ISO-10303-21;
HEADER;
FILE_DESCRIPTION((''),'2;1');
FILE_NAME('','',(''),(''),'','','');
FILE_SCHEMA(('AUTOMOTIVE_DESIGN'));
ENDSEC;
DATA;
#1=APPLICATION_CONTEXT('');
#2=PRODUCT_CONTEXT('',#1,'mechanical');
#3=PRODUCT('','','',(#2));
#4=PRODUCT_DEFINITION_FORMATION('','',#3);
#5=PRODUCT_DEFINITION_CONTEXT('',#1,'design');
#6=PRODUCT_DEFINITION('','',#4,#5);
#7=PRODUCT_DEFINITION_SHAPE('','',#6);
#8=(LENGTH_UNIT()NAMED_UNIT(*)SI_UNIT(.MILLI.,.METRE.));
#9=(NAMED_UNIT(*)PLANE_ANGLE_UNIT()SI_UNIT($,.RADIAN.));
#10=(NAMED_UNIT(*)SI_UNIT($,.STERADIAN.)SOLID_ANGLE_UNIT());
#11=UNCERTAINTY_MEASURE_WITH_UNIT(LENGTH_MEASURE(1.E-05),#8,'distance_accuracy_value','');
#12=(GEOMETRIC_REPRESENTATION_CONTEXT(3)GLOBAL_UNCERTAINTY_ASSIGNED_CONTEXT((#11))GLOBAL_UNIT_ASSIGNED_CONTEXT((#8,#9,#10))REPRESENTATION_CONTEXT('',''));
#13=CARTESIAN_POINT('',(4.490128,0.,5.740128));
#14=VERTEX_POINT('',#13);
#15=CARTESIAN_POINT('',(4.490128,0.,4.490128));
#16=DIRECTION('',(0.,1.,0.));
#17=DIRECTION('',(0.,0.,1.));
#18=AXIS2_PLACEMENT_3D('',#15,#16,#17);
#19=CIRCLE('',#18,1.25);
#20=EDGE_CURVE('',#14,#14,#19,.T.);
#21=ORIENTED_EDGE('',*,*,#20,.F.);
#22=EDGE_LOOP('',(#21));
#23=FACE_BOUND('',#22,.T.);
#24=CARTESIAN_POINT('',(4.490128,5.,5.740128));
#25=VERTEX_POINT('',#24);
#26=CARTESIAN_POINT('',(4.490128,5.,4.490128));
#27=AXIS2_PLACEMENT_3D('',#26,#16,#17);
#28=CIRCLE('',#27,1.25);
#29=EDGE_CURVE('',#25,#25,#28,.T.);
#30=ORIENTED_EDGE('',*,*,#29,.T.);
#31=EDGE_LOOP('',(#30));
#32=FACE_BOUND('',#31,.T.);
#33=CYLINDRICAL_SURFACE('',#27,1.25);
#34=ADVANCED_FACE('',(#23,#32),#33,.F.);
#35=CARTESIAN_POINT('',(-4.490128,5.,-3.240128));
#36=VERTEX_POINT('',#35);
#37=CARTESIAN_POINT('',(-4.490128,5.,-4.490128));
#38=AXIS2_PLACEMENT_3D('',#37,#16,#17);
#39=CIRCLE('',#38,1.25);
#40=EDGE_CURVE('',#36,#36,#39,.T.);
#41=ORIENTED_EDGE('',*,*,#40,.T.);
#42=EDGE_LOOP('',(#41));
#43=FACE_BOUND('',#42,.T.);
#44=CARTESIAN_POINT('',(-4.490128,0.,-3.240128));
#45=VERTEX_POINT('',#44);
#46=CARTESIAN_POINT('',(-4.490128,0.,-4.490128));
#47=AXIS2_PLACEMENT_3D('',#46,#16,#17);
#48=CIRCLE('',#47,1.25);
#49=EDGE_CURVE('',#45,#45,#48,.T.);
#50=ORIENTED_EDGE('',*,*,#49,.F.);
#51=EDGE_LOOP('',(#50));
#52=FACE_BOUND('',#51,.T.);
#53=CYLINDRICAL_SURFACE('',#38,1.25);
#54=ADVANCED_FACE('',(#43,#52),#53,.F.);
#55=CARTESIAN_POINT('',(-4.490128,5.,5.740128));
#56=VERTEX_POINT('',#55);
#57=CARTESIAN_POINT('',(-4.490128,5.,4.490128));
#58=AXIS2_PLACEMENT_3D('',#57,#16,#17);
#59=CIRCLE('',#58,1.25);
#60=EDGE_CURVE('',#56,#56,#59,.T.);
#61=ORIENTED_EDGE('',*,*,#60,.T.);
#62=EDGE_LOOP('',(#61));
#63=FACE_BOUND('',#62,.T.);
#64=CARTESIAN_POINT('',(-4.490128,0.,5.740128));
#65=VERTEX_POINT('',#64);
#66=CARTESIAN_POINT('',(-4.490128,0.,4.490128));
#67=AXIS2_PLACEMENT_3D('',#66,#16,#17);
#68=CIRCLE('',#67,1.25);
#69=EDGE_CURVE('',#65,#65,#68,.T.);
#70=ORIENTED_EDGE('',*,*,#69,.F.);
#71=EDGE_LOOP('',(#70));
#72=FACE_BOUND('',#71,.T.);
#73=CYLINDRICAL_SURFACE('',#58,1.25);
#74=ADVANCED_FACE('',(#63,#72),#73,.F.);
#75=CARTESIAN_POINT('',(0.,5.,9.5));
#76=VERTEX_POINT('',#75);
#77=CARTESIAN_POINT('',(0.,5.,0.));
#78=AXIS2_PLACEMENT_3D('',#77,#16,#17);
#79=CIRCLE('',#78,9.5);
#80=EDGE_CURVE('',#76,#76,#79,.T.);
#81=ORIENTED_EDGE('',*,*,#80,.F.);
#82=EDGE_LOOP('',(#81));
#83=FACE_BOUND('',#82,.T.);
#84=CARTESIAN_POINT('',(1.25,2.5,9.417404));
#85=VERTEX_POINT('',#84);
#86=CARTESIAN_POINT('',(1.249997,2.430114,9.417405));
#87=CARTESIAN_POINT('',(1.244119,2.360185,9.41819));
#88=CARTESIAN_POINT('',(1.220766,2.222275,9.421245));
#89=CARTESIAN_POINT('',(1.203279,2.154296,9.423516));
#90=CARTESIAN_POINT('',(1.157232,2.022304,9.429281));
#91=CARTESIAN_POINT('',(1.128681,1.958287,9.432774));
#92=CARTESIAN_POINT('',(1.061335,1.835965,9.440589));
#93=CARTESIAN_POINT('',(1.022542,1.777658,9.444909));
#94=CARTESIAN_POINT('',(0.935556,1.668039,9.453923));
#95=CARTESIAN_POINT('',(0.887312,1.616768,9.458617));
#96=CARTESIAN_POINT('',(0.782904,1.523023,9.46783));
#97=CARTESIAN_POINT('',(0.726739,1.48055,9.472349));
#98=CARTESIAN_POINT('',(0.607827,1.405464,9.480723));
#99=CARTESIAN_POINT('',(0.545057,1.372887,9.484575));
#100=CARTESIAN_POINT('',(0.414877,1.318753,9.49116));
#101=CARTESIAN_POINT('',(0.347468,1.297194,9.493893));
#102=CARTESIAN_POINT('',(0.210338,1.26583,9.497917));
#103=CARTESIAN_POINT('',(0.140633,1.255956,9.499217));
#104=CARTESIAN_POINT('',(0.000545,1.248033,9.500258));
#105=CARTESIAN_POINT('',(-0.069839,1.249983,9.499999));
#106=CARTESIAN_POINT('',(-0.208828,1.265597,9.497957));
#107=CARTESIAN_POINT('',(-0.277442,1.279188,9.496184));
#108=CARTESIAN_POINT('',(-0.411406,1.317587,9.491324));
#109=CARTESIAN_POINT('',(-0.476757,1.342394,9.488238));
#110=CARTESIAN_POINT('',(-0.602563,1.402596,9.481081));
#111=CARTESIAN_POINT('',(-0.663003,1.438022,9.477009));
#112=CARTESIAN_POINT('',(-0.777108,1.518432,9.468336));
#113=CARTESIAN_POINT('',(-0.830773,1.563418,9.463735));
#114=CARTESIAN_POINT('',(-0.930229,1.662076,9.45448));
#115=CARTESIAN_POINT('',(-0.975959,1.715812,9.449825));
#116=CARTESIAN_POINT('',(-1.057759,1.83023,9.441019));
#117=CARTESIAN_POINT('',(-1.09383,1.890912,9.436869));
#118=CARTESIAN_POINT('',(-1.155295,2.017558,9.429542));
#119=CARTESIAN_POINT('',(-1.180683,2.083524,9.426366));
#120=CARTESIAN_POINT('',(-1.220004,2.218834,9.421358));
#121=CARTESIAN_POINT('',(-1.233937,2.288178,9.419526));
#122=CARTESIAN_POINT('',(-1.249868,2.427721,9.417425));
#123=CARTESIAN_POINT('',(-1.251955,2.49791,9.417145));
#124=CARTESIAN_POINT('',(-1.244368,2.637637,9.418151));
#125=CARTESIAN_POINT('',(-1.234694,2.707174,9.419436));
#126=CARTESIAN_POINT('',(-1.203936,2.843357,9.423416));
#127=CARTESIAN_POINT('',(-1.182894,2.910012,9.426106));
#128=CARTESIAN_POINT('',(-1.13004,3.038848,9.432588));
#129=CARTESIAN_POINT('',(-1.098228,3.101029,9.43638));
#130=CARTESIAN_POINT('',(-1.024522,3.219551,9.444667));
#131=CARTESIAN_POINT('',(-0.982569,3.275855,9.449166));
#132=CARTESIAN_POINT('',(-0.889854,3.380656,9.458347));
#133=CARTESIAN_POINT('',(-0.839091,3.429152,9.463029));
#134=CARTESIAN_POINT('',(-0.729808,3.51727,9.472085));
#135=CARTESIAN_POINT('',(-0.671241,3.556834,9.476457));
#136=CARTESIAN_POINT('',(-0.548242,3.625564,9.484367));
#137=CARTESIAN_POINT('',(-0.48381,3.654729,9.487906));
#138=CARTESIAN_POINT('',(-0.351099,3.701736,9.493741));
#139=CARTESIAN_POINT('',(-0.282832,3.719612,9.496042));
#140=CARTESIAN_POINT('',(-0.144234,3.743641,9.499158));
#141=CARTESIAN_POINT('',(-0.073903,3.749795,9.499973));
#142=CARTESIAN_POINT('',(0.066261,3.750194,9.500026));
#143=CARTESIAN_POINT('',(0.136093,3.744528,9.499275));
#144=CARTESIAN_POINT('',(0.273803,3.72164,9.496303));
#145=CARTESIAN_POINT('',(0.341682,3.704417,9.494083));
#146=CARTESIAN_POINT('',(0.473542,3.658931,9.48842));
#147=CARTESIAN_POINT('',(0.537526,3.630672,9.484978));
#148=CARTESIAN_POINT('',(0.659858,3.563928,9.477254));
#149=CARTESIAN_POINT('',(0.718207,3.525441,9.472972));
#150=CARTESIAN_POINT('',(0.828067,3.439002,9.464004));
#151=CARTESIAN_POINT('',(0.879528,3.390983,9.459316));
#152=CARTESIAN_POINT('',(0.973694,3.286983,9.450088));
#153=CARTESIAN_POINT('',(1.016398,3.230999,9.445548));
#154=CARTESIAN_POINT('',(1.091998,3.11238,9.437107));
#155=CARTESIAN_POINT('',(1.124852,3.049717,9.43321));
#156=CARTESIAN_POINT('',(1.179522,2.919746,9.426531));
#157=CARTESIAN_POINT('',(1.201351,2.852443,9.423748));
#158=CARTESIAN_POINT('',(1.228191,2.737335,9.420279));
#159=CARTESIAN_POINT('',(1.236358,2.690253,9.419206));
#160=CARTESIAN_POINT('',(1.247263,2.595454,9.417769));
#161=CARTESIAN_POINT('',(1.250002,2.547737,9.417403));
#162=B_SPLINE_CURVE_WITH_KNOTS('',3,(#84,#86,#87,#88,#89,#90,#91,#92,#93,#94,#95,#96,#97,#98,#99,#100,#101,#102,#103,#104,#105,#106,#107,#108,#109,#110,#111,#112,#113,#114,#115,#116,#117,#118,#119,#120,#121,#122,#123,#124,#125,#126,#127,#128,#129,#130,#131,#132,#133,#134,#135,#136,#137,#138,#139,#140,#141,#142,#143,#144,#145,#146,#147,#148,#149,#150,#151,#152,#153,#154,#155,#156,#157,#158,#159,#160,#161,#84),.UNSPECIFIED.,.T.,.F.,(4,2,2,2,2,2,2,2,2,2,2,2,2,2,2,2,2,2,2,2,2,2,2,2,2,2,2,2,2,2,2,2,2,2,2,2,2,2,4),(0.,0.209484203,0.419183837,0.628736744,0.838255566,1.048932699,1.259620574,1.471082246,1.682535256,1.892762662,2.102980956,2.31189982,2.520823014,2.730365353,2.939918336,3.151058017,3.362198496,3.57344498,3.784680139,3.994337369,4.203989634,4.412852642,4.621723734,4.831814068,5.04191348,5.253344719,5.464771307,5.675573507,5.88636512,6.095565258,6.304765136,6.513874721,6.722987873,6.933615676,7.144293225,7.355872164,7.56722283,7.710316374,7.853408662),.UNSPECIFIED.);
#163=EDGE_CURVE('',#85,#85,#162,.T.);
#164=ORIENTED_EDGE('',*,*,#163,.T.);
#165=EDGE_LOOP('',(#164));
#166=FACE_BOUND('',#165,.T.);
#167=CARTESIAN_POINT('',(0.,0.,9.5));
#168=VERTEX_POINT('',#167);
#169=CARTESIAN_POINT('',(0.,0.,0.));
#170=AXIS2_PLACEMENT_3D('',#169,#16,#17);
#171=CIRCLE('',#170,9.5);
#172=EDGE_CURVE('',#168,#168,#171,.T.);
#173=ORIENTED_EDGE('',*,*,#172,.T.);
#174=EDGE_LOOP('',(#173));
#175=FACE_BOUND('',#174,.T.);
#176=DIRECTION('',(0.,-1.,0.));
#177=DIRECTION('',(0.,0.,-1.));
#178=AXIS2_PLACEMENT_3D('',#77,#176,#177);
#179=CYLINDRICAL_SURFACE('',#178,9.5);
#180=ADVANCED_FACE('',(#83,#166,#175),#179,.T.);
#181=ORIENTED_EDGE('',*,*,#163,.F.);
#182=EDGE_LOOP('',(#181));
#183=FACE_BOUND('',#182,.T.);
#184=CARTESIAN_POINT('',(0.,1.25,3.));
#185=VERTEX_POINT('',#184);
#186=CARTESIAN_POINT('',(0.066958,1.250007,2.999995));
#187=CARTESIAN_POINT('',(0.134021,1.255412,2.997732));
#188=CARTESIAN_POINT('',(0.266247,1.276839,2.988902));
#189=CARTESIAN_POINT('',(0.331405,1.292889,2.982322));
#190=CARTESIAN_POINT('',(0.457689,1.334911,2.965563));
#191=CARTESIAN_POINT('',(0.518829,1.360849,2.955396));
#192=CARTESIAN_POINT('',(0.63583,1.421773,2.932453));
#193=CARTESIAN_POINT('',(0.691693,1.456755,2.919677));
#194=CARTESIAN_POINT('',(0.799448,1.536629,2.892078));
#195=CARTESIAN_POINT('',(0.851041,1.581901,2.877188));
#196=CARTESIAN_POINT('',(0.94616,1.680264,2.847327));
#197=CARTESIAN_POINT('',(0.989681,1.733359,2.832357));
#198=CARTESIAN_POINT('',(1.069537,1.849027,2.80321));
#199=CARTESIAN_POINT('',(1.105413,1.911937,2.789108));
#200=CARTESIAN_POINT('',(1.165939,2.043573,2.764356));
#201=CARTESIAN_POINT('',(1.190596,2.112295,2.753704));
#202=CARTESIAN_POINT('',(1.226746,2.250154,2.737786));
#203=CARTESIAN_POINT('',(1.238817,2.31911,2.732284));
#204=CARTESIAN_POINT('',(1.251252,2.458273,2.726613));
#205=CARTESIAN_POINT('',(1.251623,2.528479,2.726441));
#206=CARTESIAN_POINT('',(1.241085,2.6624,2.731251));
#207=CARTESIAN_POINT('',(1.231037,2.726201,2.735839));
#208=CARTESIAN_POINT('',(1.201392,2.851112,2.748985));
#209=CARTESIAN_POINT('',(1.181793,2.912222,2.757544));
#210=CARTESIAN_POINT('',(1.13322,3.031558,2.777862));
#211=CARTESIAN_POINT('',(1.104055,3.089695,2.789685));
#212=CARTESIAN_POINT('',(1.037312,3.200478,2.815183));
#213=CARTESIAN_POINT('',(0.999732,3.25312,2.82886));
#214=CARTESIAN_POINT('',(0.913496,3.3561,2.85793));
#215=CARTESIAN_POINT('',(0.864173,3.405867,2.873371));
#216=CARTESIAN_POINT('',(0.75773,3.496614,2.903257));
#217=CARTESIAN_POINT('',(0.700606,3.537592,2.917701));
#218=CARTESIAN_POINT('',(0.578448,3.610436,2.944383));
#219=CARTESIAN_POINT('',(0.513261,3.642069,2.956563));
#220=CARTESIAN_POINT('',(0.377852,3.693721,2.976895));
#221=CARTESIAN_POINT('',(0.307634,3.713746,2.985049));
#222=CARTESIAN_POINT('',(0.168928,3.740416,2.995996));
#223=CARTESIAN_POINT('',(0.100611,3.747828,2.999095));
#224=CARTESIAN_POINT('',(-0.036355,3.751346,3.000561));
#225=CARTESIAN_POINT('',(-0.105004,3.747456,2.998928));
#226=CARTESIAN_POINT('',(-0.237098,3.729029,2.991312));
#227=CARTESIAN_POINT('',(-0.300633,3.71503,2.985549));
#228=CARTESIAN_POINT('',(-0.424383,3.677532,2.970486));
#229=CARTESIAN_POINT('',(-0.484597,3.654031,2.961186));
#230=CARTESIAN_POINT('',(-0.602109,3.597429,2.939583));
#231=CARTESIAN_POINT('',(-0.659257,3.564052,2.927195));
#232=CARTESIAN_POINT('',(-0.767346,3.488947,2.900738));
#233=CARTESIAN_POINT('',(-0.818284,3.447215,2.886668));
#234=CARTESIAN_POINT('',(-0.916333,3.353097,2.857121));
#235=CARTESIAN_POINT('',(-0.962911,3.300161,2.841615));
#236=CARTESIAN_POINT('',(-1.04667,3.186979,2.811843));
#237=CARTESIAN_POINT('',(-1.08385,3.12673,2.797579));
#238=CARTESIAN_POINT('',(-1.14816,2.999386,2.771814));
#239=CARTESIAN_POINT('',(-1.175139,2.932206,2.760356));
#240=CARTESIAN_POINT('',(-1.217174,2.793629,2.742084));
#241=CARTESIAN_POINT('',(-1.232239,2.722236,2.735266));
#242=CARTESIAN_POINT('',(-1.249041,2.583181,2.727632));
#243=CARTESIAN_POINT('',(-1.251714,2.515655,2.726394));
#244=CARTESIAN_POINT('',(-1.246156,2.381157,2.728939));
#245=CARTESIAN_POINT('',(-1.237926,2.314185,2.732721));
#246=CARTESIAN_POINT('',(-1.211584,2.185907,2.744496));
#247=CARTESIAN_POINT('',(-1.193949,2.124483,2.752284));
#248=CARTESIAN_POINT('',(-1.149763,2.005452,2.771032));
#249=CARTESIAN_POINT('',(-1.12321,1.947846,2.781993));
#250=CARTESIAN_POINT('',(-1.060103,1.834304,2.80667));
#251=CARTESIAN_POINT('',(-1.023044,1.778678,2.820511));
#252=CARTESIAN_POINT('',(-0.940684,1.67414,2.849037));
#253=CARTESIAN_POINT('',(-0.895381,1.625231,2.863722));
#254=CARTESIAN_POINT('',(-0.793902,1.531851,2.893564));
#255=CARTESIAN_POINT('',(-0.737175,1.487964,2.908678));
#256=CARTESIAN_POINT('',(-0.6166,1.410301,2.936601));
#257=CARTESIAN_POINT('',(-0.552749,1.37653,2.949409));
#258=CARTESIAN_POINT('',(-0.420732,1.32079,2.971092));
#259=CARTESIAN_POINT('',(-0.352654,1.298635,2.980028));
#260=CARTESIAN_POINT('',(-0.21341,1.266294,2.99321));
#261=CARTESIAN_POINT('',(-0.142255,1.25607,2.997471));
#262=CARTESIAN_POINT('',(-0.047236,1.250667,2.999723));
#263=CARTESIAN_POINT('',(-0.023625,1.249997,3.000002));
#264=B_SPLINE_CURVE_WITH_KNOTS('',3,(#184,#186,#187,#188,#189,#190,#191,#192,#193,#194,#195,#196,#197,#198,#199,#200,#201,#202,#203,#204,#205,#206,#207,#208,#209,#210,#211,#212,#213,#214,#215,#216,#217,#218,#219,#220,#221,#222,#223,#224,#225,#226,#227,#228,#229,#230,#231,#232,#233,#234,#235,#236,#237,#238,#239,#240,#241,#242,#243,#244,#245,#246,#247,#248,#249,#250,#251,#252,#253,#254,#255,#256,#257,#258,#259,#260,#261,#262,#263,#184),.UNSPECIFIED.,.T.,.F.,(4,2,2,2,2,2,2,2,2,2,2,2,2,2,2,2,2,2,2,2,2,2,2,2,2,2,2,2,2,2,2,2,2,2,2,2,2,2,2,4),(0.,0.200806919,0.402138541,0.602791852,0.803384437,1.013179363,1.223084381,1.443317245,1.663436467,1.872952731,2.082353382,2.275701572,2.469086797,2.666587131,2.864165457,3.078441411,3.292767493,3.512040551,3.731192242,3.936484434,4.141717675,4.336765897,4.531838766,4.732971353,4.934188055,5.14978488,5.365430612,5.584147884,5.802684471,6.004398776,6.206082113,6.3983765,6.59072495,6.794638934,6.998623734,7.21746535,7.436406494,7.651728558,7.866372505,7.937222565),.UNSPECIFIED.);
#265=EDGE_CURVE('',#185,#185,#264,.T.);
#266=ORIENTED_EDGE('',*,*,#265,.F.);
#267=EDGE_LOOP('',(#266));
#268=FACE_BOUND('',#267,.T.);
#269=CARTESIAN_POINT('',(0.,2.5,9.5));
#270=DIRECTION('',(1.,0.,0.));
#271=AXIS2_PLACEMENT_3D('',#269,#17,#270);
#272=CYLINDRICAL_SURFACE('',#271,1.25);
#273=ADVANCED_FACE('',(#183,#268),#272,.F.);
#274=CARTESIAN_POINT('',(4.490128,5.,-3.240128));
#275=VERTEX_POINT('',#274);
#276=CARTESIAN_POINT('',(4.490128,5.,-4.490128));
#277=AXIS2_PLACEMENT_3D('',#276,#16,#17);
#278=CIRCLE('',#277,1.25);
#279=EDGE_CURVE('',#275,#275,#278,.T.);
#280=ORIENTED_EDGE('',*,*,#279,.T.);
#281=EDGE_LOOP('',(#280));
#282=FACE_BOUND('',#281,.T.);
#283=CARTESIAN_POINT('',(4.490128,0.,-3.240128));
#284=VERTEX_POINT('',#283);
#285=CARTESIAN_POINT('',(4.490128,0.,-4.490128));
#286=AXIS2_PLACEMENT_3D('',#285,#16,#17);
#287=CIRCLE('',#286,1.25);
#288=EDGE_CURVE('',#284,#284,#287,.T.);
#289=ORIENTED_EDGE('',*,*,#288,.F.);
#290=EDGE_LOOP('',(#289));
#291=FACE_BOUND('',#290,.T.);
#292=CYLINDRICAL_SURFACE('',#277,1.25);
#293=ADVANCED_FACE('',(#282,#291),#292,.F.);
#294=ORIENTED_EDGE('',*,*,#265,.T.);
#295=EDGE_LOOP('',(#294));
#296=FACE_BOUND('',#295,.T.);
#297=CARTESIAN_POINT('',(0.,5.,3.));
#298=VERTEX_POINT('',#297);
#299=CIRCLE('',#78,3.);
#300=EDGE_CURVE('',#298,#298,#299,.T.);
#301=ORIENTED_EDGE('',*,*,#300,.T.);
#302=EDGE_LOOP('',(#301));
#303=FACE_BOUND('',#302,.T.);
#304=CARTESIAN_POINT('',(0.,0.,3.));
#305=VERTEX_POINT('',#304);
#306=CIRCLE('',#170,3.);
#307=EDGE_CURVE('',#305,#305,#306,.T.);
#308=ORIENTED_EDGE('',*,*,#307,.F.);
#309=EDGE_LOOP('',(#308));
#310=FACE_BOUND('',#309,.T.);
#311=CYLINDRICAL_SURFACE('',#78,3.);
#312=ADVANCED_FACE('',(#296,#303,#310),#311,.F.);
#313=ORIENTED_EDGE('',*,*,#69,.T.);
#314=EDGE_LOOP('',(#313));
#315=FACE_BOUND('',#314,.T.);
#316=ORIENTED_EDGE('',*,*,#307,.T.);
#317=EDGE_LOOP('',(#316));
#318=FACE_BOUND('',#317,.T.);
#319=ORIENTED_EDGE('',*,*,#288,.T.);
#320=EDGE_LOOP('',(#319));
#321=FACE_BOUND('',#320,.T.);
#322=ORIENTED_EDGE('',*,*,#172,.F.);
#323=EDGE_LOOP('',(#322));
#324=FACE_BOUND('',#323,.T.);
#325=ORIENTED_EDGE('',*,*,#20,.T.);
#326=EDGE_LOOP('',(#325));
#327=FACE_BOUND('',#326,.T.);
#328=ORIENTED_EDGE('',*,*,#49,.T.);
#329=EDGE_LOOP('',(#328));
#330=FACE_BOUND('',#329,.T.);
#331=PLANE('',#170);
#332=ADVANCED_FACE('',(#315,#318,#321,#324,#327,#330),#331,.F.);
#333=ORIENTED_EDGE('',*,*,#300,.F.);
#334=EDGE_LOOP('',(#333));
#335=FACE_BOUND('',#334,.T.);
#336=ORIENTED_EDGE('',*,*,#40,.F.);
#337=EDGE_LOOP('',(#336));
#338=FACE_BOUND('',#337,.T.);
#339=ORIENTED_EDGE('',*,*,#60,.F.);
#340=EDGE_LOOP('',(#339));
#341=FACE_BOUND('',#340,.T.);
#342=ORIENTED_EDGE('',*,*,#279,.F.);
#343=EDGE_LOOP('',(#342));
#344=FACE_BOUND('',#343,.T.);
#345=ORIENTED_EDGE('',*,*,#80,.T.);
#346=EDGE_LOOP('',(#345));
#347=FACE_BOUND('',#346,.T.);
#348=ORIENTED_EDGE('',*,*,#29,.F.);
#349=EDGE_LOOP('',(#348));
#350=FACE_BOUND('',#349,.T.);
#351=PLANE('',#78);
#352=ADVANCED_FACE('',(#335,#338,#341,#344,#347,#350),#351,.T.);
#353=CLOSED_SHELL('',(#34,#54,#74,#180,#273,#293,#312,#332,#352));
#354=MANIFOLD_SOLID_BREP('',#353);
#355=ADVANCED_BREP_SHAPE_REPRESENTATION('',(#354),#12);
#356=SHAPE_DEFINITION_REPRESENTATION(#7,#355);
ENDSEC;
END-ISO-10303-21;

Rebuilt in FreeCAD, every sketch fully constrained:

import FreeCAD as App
import Part
import Sketcher

V = App.Vector

doc = App.newDocument("Part")
body = doc.addObject("PartDesign::Body", "Body")

# Sketch on XZ plane
sketch1 = doc.addObject("Sketcher::SketchObject", "Sketch")
body.addObject(sketch1)
sketch1.AttachmentSupport = (doc.XZ_Plane, [""])
sketch1.MapMode = "FlatFace"
sketch1.addGeometry(Part.Circle(V(0, 0, 0), V(0, 0, 1), 9.5), False)
sketch1.addConstraint([
    Sketcher.Constraint("Coincident", 0, 3, -1, 1),
    Sketcher.Constraint("Diameter", 0, 19.0),
])
pad1 = doc.addObject("PartDesign::Pad", "Pad")
body.addObject(pad1)
pad1.Profile = sketch1
pad1.Length = 5
pad1.Reversed = True

# Sketch on XZ plane
sketch2 = doc.addObject("Sketcher::SketchObject", "Sketch001")
body.addObject(sketch2)
sketch2.AttachmentSupport = (doc.XZ_Plane, [""])
sketch2.MapMode = "FlatFace"
sketch2.AttachmentOffset = App.Placement(V(0, 0, -5), App.Rotation())
sketch2.addGeometry(Part.Circle(V(0, 0, 0), V(0, 0, 1), 3), False)
sketch2.addConstraint([
    Sketcher.Constraint("Coincident", 0, 3, -1, 1),
    Sketcher.Constraint("Diameter", 0, 6.0),
])
doc.recompute()
hole = doc.addObject("PartDesign::Hole", "Hole")
body.addObject(hole)
hole.Profile = sketch2
hole.ThreadType = "None"
hole.Diameter = 6
hole.DepthType = "ThroughAll"
hole.Reversed = True

# Sketch on XZ plane
sketch3 = doc.addObject("Sketcher::SketchObject", "Sketch002")
body.addObject(sketch3)
sketch3.AttachmentSupport = (doc.XZ_Plane, [""])
sketch3.MapMode = "FlatFace"
sketch3.AttachmentOffset = App.Placement(V(0, 0, -5), App.Rotation())
sketch3.addGeometry([
    Part.Circle(V(4.490128, -4.490128, 0), V(0, 0, 1), 1.25),
    Part.Circle(V(-4.490128, -4.490128, 0), V(0, 0, 1), 1.25),
    Part.Circle(V(-4.490128, 4.490128, 0), V(0, 0, 1), 1.25),
    Part.Circle(V(4.490128, 4.490128, 0), V(0, 0, 1), 1.25),
], False)
sketch3.addConstraint([
    Sketcher.Constraint("Equal", 0, 1),
    Sketcher.Constraint("Equal", 1, 2),
    Sketcher.Constraint("Equal", 2, 3),
    Sketcher.Constraint("Symmetric", 0, 3, 2, 3, -1, 1),
    Sketcher.Constraint("Symmetric", 1, 3, 3, 3, -1, 1),
    Sketcher.Constraint("Symmetric", 0, 3, 1, 3, -2),
    Sketcher.Constraint("Diameter", 0, 2.5),
    Sketcher.Constraint("DistanceX", -1, 1, 0, 3, 4.490128),
    Sketcher.Constraint("DistanceY", 0, 3, -1, 1, 4.490128),
])
doc.recompute()
hole2 = doc.addObject("PartDesign::Hole", "Hole001")
body.addObject(hole2)
hole2.Profile = sketch3
hole2.ThreadType = "None"
hole2.Diameter = 2.5
hole2.DepthType = "ThroughAll"
hole2.Reversed = True

# Sketch on XY plane
sketch4 = doc.addObject("Sketcher::SketchObject", "Sketch003")
body.addObject(sketch4)
sketch4.AttachmentSupport = (doc.XY_Plane, [""])
sketch4.MapMode = "FlatFace"
sketch4.AttachmentOffset = App.Placement(V(0, 0, 9.5), App.Rotation())
sketch4.addGeometry(Part.Circle(V(0, 2.5, 0), V(0, 0, 1), 1.25), False)
sketch4.addConstraint([
    Sketcher.Constraint("PointOnObject", 0, 3, -2),
    Sketcher.Constraint("Diameter", 0, 2.5),
    Sketcher.Constraint("DistanceY", -1, 1, 0, 3, 2.5),
])
doc.recompute()
hole3 = doc.addObject("PartDesign::Hole", "Hole002")
body.addObject(hole3)
hole3.Profile = sketch4
hole3.ThreadType = "None"
hole3.Diameter = 2.5
hole3.DepthType = "Dimension"
hole3.Depth = 10
hole3.DrillPoint = "Angled"
hole3.DrillPointAngle = 118

doc.recompute()
